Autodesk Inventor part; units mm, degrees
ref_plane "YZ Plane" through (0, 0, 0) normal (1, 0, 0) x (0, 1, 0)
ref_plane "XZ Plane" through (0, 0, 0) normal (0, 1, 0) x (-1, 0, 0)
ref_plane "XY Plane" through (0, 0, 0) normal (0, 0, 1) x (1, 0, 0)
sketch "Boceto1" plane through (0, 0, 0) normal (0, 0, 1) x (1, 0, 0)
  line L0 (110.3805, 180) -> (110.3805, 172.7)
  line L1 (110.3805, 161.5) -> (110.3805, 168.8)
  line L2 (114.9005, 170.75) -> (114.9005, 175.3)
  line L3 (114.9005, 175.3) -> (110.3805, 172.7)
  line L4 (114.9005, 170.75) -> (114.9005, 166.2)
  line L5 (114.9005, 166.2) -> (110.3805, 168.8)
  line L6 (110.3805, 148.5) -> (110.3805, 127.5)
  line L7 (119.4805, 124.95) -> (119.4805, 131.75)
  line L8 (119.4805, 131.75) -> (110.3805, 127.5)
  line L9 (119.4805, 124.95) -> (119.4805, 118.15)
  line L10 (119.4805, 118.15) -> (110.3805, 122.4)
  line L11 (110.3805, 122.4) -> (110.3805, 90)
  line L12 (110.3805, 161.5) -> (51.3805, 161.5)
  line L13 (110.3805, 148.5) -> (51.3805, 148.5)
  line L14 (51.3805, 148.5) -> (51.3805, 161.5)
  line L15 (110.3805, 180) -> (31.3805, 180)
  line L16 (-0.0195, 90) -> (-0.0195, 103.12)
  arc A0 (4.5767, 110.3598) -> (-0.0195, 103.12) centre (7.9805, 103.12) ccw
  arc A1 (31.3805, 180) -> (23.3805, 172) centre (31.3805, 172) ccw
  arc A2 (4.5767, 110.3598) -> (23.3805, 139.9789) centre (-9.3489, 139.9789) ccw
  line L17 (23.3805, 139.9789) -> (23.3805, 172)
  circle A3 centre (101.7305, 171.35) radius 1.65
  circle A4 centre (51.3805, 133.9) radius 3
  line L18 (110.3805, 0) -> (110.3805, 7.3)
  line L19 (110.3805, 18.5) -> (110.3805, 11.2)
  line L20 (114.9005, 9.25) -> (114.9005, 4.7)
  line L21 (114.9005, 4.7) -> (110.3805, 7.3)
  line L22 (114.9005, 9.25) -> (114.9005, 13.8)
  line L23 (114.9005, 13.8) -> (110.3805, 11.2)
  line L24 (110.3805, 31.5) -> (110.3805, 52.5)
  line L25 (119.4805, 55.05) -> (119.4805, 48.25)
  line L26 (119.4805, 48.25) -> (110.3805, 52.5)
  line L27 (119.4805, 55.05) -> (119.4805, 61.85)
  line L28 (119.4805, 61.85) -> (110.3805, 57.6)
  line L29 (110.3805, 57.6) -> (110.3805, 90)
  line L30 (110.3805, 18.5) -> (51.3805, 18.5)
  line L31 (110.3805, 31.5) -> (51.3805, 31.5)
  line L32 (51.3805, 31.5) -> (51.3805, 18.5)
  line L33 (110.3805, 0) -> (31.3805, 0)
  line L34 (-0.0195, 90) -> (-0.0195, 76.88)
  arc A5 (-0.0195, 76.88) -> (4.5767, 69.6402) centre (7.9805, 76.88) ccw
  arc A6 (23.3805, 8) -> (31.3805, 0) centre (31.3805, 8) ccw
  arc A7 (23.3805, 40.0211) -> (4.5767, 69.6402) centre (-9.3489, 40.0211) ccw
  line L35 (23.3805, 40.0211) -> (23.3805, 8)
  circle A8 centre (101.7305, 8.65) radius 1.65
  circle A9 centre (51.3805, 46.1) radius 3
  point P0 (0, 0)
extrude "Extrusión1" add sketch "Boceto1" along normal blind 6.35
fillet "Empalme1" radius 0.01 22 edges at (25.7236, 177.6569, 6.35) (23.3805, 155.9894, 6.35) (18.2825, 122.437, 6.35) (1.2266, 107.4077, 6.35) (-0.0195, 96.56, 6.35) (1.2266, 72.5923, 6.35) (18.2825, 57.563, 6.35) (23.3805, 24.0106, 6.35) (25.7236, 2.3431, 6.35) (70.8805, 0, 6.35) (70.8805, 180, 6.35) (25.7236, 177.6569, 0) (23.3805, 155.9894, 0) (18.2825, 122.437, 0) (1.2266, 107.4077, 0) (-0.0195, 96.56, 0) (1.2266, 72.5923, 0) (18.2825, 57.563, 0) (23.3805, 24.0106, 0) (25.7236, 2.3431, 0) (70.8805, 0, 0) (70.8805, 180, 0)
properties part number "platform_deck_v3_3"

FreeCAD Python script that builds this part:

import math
import FreeCAD as App
import Part
import Sketcher

V = App.Vector


def edges_at(feature, points):
    """Names of the edges that pass closest to the given points."""
    edges = feature.Shape.Edges
    near = lambda p: min(range(len(edges)), key=lambda i: edges[i].distToShape(Part.Vertex(*p))[0])
    return sorted({f"Edge{near(p) + 1}" for p in points})

doc = App.newDocument("Part")
body = doc.addObject("PartDesign::Body", "Body")

sketch1 = body.newObject("Sketcher::SketchObject", "Sketch")
sketch1.AttachmentSupport = (doc.getObject("XY_Plane"), [""])
sketch1.MapMode = "FlatFace"
sketch1.addGeometry(Part.LineSegment(V(110.3805, 172.7, 0), V(110.3805, 180, 0)), False)
sketch1.addGeometry(Part.LineSegment(V(110.3805, 180, 0), V(31.3805, 180, 0)), False)
sketch1.addGeometry(Part.ArcOfCircle(Part.Circle(V(31.3805, 172, 0), V(0, 0, 1), 8), math.radians(90), math.radians(180)), False)
sketch1.addGeometry(Part.LineSegment(V(23.3805, 172, 0), V(23.3805, 139.9789, 0)), False)
sketch1.addGeometry(Part.ArcOfCircle(Part.Circle(V(-9.3489, 139.9789, 0), V(0, 0, 1), 32.729397), math.radians(-64.819151), math.radians(0)), False)
sketch1.addGeometry(Part.ArcOfCircle(Part.Circle(V(7.9805, 103.12, 0), V(0, 0, 1), 8.000035), math.radians(115.180616), math.radians(180)), False)
sketch1.addGeometry(Part.LineSegment(V(-0.0195, 103.12, 0), V(-0.0195, 76.88, 0)), False)
sketch1.addGeometry(Part.ArcOfCircle(Part.Circle(V(7.9805, 76.88, 0), V(0, 0, 1), 8), math.radians(180), math.radians(244.819384)), False)
sketch1.addGeometry(Part.ArcOfCircle(Part.Circle(V(-9.3489, 40.0211, 0), V(0, 0, 1), 32.7294), math.radians(0), math.radians(64.819151)), False)
sketch1.addGeometry(Part.LineSegment(V(23.3805, 40.0211, 0), V(23.3805, 8, 0)), False)
sketch1.addGeometry(Part.ArcOfCircle(Part.Circle(V(31.3805, 8, 0), V(0, 0, 1), 8), math.radians(180), math.radians(270)), False)
sketch1.addGeometry(Part.LineSegment(V(31.3805, 0, 0), V(110.3805, 0, 0)), False)
sketch1.addGeometry(Part.LineSegment(V(110.3805, 0, 0), V(110.3805, 7.3, 0)), False)
sketch1.addGeometry(Part.LineSegment(V(110.3805, 7.3, 0), V(114.9005, 4.7, 0)), False)
sketch1.addGeometry(Part.LineSegment(V(114.9005, 4.7, 0), V(114.9005, 13.8, 0)), False)
sketch1.addGeometry(Part.LineSegment(V(114.9005, 13.8, 0), V(110.3805, 11.2, 0)), False)
sketch1.addGeometry(Part.LineSegment(V(110.3805, 11.2, 0), V(110.3805, 18.5, 0)), False)
sketch1.addGeometry(Part.LineSegment(V(110.3805, 18.5, 0), V(51.3805, 18.5, 0)), False)
sketch1.addGeometry(Part.LineSegment(V(51.3805, 18.5, 0), V(51.3805, 31.5, 0)), False)
sketch1.addGeometry(Part.LineSegment(V(51.3805, 31.5, 0), V(110.3805, 31.5, 0)), False)
sketch1.addGeometry(Part.LineSegment(V(110.3805, 31.5, 0), V(110.3805, 52.5, 0)), False)
sketch1.addGeometry(Part.LineSegment(V(110.3805, 52.5, 0), V(119.4805, 48.25, 0)), False)
sketch1.addGeometry(Part.LineSegment(V(119.4805, 48.25, 0), V(119.4805, 61.85, 0)), False)
sketch1.addGeometry(Part.LineSegment(V(119.4805, 61.85, 0), V(110.3805, 57.6, 0)), False)
sketch1.addGeometry(Part.LineSegment(V(110.3805, 57.6, 0), V(110.3805, 122.4, 0)), False)
sketch1.addGeometry(Part.LineSegment(V(110.3805, 122.4, 0), V(119.4805, 118.15, 0)), False)
sketch1.addGeometry(Part.LineSegment(V(119.4805, 118.15, 0), V(119.4805, 131.75, 0)), False)
sketch1.addGeometry(Part.LineSegment(V(119.4805, 131.75, 0), V(110.3805, 127.5, 0)), False)
sketch1.addGeometry(Part.LineSegment(V(110.3805, 127.5, 0), V(110.3805, 148.5, 0)), False)
sketch1.addGeometry(Part.LineSegment(V(110.3805, 148.5, 0), V(51.3805, 148.5, 0)), False)
sketch1.addGeometry(Part.LineSegment(V(51.3805, 148.5, 0), V(51.3805, 161.5, 0)), False)
sketch1.addGeometry(Part.LineSegment(V(51.3805, 161.5, 0), V(110.3805, 161.5, 0)), False)
sketch1.addGeometry(Part.LineSegment(V(110.3805, 161.5, 0), V(110.3805, 168.8, 0)), False)
sketch1.addGeometry(Part.LineSegment(V(110.3805, 168.8, 0), V(114.9005, 166.2, 0)), False)
sketch1.addGeometry(Part.LineSegment(V(114.9005, 166.2, 0), V(114.9005, 175.3, 0)), False)
sketch1.addGeometry(Part.LineSegment(V(114.9005, 175.3, 0), V(110.3805, 172.7, 0)), False)
sketch1.addGeometry(Part.Circle(V(51.3805, 46.1, 0), V(0, 0, 1), 3), False)
sketch1.addGeometry(Part.Circle(V(101.7305, 8.65, 0), V(0, 0, 1), 1.65), False)
sketch1.addGeometry(Part.Circle(V(51.3805, 133.9, 0), V(0, 0, 1), 3), False)
sketch1.addGeometry(Part.Circle(V(101.7305, 171.35, 0), V(0, 0, 1), 1.65), False)
sketch1.addConstraint(Sketcher.Constraint("Coincident", 0, 2, 1, 1))
sketch1.addConstraint(Sketcher.Constraint("Tangent", 1, 2, 2, 1))
sketch1.addConstraint(Sketcher.Constraint("Tangent", 2, 2, 3, 1))
sketch1.addConstraint(Sketcher.Constraint("Tangent", 3, 2, 4, 2))
sketch1.addConstraint(Sketcher.Constraint("Tangent", 4, 1, 5, 1))
sketch1.addConstraint(Sketcher.Constraint("Tangent", 5, 2, 6, 1))
sketch1.addConstraint(Sketcher.Constraint("Tangent", 6, 2, 7, 1))
sketch1.addConstraint(Sketcher.Constraint("Tangent", 7, 2, 8, 2))
sketch1.addConstraint(Sketcher.Constraint("Tangent", 8, 1, 9, 1))
sketch1.addConstraint(Sketcher.Constraint("Tangent", 9, 2, 10, 1))
sketch1.addConstraint(Sketcher.Constraint("Tangent", 10, 2, 11, 1))
sketch1.addConstraint(Sketcher.Constraint("Coincident", 11, 2, 12, 1))
sketch1.addConstraint(Sketcher.Constraint("Coincident", 12, 2, 13, 1))
sketch1.addConstraint(Sketcher.Constraint("Coincident", 13, 2, 14, 1))
sketch1.addConstraint(Sketcher.Constraint("Coincident", 14, 2, 15, 1))
sketch1.addConstraint(Sketcher.Constraint("Coincident", 15, 2, 16, 1))
sketch1.addConstraint(Sketcher.Constraint("Coincident", 16, 2, 17, 1))
sketch1.addConstraint(Sketcher.Constraint("Coincident", 17, 2, 18, 1))
sketch1.addConstraint(Sketcher.Constraint("Coincident", 18, 2, 19, 1))
sketch1.addConstraint(Sketcher.Constraint("Coincident", 19, 2, 20, 1))
sketch1.addConstraint(Sketcher.Constraint("Coincident", 20, 2, 21, 1))
sketch1.addConstraint(Sketcher.Constraint("Coincident", 21, 2, 22, 1))
sketch1.addConstraint(Sketcher.Constraint("Coincident", 22, 2, 23, 1))
sketch1.addConstraint(Sketcher.Constraint("Coincident", 23, 2, 24, 1))
sketch1.addConstraint(Sketcher.Constraint("Coincident", 24, 2, 25, 1))
sketch1.addConstraint(Sketcher.Constraint("Coincident", 25, 2, 26, 1))
sketch1.addConstraint(Sketcher.Constraint("Coincident", 26, 2, 27, 1))
sketch1.addConstraint(Sketcher.Constraint("Coincident", 27, 2, 28, 1))
sketch1.addConstraint(Sketcher.Constraint("Coincident", 28, 2, 29, 1))
sketch1.addConstraint(Sketcher.Constraint("Coincident", 29, 2, 30, 1))
sketch1.addConstraint(Sketcher.Constraint("Coincident", 30, 2, 31, 1))
sketch1.addConstraint(Sketcher.Constraint("Coincident", 31, 2, 32, 1))
sketch1.addConstraint(Sketcher.Constraint("Coincident", 32, 2, 33, 1))
sketch1.addConstraint(Sketcher.Constraint("Coincident", 33, 2, 34, 1))
sketch1.addConstraint(Sketcher.Constraint("Coincident", 34, 2, 35, 1))
sketch1.addConstraint(Sketcher.Constraint("Coincident", 35, 2, 0, 1))
sketch1.addConstraint(Sketcher.Constraint("Vertical", 0))
sketch1.addConstraint(Sketcher.Constraint("Horizontal", 1))
sketch1.addConstraint(Sketcher.Constraint("Vertical", 3))
sketch1.addConstraint(Sketcher.Constraint("Vertical", 6))
sketch1.addConstraint(Sketcher.Constraint("Vertical", 9))
sketch1.addConstraint(Sketcher.Constraint("Horizontal", 11))
sketch1.addConstraint(Sketcher.Constraint("Vertical", 12))
sketch1.addConstraint(Sketcher.Constraint("Vertical", 14))
sketch1.addConstraint(Sketcher.Constraint("Vertical", 16))
sketch1.addConstraint(Sketcher.Constraint("Horizontal", 17))
sketch1.addConstraint(Sketcher.Constraint("Vertical", 18))
sketch1.addConstraint(Sketcher.Constraint("Horizontal", 19))
sketch1.addConstraint(Sketcher.Constraint("Vertical", 20))
sketch1.addConstraint(Sketcher.Constraint("Vertical", 22))
sketch1.addConstraint(Sketcher.Constraint("Vertical", 24))
sketch1.addConstraint(Sketcher.Constraint("Vertical", 26))
sketch1.addConstraint(Sketcher.Constraint("Vertical", 28))
sketch1.addConstraint(Sketcher.Constraint("Horizontal", 29))
sketch1.addConstraint(Sketcher.Constraint("Vertical", 30))
sketch1.addConstraint(Sketcher.Constraint("Horizontal", 31))
sketch1.addConstraint(Sketcher.Constraint("Vertical", 32))
sketch1.addConstraint(Sketcher.Constraint("Vertical", 34))
sketch1.addConstraint(Sketcher.Constraint("Equal", 2, 5))
sketch1.addConstraint(Sketcher.Constraint("Equal", 5, 7))
sketch1.addConstraint(Sketcher.Constraint("Equal", 4, 8))
sketch1.addConstraint(Sketcher.Constraint("Equal", 7, 10))
sketch1.addConstraint(Sketcher.Constraint("Equal", 36, 38))
sketch1.addConstraint(Sketcher.Constraint("Equal", 37, 39))
sketch1.addConstraint(Sketcher.Constraint("PointOnObject", 10, 2, -1))
sketch1.addConstraint(Sketcher.Constraint("Parallel", 21, 25))
sketch1.addConstraint(Sketcher.Constraint("Parallel", 23, 27))
sketch1.addConstraint(Sketcher.Constraint("Parallel", 13, 33))
sketch1.addConstraint(Sketcher.Constraint("Parallel", 15, 35))
sketch1.addConstraint(Sketcher.Constraint("Vertical", 4, 3, 8, 3))
sketch1.addConstraint(Sketcher.Constraint("Vertical", 36, 3, 38, 3))
sketch1.addConstraint(Sketcher.Constraint("Vertical", 37, 3, 39, 3))
sketch1.addConstraint(Sketcher.Constraint("Vertical", 0, 2, 11, 2))
sketch1.addConstraint(Sketcher.Constraint("Vertical", 12, 2, 15, 2))
sketch1.addConstraint(Sketcher.Constraint("Vertical", 38, 3, 17, 2))
sketch1.addConstraint(Sketcher.Constraint("Vertical", 16, 2, 19, 2))
sketch1.addConstraint(Sketcher.Constraint("Vertical", 20, 2, 23, 2))
sketch1.addConstraint(Sketcher.Constraint("Vertical", 22, 2, 25, 2))
sketch1.addConstraint(Sketcher.Constraint("Vertical", 24, 2, 27, 2))
sketch1.addConstraint(Sketcher.Constraint("Vertical", 18, 2, 29, 2))
sketch1.addConstraint(Sketcher.Constraint("Vertical", 28, 2, 31, 2))
sketch1.addConstraint(Sketcher.Constraint("Vertical", 14, 2, 33, 2))
sketch1.addConstraint(Sketcher.Constraint("Equal", 3, 9))
sketch1.addConstraint(Sketcher.Constraint("Equal", 0, 12))
sketch1.addConstraint(Sketcher.Constraint("Equal", 12, 16))
sketch1.addConstraint(Sketcher.Constraint("Equal", 22, 26))
sketch1.addConstraint(Sketcher.Constraint("Equal", 20, 28))
sketch1.addConstraint(Sketcher.Constraint("Equal", 18, 30))
sketch1.addConstraint(Sketcher.Constraint("Equal", 16, 32))
sketch1.addConstraint(Sketcher.Constraint("Equal", 14, 34))
sketch1.addConstraint(Sketcher.Constraint("Equal", 13, 15))
sketch1.addConstraint(Sketcher.Constraint("Equal", 21, 23))
sketch1.addConstraint(Sketcher.Constraint("Diameter", 36, 6.0))
sketch1.addConstraint(Sketcher.Constraint("Radius", 2, 8.0))
sketch1.addConstraint(Sketcher.Constraint("Diameter", 37, 3.3))
sketch1.addConstraint(Sketcher.Constraint("DistanceX", 1, 2, 1, 1, 79.0))
sketch1.addConstraint(Sketcher.Constraint("DistanceX", 17, 2, 17, 1, 59.0))
sketch1.addConstraint(Sketcher.Constraint("DistanceY", 18, 1, 18, 2, 13.0))
sketch1.addConstraint(Sketcher.Constraint("DistanceY", 20, 1, 20, 2, 21.0))
sketch1.addConstraint(Sketcher.Constraint("DistanceY", 0, 1, 0, 2, 7.3))
sketch1.addConstraint(Sketcher.Constraint("DistanceY", 14, 1, 14, 2, 9.1))
sketch1.addConstraint(Sketcher.Constraint("DistanceY", 22, 1, 22, 2, 13.6))
sketch1.addConstraint(Sketcher.Constraint("DistanceY", 24, 1, 24, 2, 64.8))
sketch1.addConstraint(Sketcher.Constraint("DistanceY", -1, 1, 2, 3, 172.0))
sketch1.addConstraint(Sketcher.Constraint("DistanceY", 6, 2, 6, 1, 26.24))
sketch1.addConstraint(Sketcher.Constraint("DistanceY", -1, 1, 36, 3, 46.1))
sketch1.addConstraint(Sketcher.Constraint("DistanceY", -1, 1, 38, 3, 133.9))
sketch1.addConstraint(Sketcher.Constraint("DistanceY", -1, 1, 13, 2, 4.7))
sketch1.addConstraint(Sketcher.Constraint("Radius", 4, 32.7294))
sketch1.addConstraint(Sketcher.Constraint("DistanceX", 5, 3, 2, 3, 23.4))
sketch1.addConstraint(Sketcher.Constraint("DistanceX", 20, 2, 21, 2, 9.1))
sketch1.addConstraint(Sketcher.Constraint("DistanceY", 25, 2, 39, 3, 53.2))
sketch1.addConstraint(Sketcher.Constraint("DistanceY", -1, 1, 37, 3, 8.65))
sketch1.addConstraint(Sketcher.Constraint("DistanceX", 36, 3, 37, 3, 50.35))
sketch1.addConstraint(Sketcher.Constraint("DistanceX", 12, 2, 13, 2, 4.52))
sketch1.addConstraint(Sketcher.Constraint("DistanceX", 4, 3, -1, 1, 9.349))
pad1 = body.newObject("PartDesign::Pad", "Pad")
pad1.Profile = sketch1
pad1.Length = 6.35
doc.recompute()

fillet = body.newObject("PartDesign::Fillet", "Fillet")
fillet.Base = (pad1, edges_at(pad1, [
    (25.724, 177.657, 6.35),
    (23.381, 155.989, 6.35),
    (18.282, 122.437, 6.35),
    (1.227, 107.408, 6.35),
    (-0.019, 96.56, 6.35),
    (1.227, 72.592, 6.35),
    (18.282, 57.563, 6.35),
    (23.381, 24.011, 6.35),
    (25.724, 2.343, 6.35),
    (70.88, 0, 6.35),
    (70.88, 180, 6.35),
    (25.724, 177.657, 0),
    (23.381, 155.989, 0),
    (18.282, 122.437, 0),
    (1.227, 107.408, 0),
    (-0.019, 96.56, 0),
    (1.227, 72.592, 0),
    (18.282, 57.563, 0),
    (23.381, 24.011, 0),
    (25.724, 2.343, 0),
    (70.88, 0, 0),
    (70.88, 180, 0),
]))
fillet.Radius = 0.01

doc.recompute()
